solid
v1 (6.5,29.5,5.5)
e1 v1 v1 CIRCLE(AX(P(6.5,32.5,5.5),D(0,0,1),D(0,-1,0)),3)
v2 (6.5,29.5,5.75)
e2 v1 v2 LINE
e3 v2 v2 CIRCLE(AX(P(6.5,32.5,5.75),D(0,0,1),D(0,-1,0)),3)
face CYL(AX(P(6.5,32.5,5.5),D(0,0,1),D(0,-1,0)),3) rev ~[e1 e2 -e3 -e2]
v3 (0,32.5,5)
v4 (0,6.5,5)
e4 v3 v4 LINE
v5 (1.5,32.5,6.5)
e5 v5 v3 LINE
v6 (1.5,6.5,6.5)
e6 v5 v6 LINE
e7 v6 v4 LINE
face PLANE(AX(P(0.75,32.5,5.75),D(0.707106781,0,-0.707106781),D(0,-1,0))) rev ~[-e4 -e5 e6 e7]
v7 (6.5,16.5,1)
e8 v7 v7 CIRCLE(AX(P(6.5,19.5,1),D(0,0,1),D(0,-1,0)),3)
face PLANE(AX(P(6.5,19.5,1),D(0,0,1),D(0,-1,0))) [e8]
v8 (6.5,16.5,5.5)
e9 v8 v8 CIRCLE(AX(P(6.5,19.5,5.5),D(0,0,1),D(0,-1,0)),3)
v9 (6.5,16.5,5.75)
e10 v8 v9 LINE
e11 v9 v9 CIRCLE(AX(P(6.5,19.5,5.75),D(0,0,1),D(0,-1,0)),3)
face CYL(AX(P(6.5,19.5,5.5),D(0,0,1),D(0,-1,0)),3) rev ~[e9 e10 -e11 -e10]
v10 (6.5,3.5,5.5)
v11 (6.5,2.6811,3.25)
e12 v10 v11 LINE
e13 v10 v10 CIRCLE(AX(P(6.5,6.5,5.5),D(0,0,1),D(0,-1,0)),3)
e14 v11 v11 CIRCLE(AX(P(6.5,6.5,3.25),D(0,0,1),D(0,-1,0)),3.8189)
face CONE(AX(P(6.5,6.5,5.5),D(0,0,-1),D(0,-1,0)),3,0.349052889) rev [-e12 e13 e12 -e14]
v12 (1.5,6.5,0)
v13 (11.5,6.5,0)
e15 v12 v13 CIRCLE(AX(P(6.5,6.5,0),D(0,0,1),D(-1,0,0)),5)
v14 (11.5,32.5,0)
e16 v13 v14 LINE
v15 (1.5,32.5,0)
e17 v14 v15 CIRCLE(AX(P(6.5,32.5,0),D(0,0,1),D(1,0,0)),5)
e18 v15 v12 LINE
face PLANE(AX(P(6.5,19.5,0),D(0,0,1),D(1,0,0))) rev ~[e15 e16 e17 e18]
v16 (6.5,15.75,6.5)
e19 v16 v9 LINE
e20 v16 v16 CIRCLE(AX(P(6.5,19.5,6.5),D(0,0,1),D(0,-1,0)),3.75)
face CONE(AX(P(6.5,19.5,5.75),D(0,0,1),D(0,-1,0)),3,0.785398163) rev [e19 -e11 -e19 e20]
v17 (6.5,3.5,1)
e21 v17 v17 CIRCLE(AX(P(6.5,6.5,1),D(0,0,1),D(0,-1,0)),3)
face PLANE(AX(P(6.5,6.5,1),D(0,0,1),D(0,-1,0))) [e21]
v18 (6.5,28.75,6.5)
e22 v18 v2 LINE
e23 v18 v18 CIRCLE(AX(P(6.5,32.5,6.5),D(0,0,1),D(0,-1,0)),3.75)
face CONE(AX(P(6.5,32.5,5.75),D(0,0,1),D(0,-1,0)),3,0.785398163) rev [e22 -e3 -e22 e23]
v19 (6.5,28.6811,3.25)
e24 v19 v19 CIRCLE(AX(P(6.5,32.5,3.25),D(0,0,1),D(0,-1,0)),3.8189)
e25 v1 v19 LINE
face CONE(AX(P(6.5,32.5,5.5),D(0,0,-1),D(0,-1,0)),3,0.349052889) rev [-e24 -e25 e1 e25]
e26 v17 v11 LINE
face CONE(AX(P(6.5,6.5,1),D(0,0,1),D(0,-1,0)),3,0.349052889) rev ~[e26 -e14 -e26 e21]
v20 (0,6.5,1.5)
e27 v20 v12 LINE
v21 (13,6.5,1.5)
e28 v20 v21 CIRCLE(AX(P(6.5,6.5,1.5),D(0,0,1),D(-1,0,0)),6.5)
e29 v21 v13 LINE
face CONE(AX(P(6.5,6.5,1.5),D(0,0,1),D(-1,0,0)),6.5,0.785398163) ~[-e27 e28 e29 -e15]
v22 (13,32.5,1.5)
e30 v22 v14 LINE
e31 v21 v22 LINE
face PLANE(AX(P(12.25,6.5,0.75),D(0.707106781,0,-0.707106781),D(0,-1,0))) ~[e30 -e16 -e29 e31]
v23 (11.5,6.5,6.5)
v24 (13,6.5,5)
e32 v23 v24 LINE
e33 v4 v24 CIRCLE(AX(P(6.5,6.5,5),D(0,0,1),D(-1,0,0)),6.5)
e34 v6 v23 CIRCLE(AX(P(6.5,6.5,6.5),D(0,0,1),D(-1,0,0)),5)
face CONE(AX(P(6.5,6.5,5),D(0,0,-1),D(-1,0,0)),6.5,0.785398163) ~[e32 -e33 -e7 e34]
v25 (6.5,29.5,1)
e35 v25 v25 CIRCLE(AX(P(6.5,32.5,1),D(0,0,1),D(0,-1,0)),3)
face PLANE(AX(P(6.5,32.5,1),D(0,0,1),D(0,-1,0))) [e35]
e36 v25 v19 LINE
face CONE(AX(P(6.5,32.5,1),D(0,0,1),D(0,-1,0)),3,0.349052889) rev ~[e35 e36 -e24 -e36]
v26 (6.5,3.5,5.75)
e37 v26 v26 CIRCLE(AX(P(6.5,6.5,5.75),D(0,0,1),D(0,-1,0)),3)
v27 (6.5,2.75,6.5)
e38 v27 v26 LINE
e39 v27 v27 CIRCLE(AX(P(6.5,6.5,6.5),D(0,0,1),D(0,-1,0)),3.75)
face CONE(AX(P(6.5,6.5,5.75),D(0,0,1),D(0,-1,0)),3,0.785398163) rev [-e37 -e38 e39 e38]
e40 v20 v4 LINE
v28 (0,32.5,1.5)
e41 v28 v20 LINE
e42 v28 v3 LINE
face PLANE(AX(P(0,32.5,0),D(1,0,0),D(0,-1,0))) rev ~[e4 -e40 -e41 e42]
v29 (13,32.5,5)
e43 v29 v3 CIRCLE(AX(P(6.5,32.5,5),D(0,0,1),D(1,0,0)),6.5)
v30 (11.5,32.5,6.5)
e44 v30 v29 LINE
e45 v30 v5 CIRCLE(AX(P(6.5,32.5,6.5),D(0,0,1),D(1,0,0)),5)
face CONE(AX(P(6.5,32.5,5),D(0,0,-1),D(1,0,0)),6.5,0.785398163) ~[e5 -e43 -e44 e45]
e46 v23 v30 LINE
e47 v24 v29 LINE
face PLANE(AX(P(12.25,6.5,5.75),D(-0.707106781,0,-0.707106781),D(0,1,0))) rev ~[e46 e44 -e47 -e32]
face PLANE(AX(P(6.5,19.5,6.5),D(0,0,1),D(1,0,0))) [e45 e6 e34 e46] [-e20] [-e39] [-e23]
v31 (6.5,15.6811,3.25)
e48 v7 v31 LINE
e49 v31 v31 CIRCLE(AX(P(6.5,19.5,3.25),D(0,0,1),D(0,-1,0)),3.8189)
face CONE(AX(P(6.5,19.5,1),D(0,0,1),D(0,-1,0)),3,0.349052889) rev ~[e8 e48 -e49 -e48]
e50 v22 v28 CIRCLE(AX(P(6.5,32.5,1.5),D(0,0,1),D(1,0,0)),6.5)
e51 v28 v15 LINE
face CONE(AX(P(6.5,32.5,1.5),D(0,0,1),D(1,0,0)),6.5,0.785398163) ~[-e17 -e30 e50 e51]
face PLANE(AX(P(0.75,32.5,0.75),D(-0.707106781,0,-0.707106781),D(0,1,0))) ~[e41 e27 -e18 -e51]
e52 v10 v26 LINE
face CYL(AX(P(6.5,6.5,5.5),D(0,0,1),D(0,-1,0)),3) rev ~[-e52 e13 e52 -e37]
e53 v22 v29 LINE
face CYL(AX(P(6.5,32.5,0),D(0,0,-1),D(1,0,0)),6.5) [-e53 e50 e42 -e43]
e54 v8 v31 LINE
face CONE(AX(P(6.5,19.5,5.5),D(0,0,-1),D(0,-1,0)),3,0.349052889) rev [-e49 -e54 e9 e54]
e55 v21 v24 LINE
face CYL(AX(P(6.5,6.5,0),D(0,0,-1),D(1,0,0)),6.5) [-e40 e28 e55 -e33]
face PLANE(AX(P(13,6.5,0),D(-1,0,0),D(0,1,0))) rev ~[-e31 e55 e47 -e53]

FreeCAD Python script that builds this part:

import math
import FreeCAD as App
import Part
import Sketcher

V = App.Vector
Q = App.Units.Quantity


def edges_at(feature, points):
    """Names of the edges that pass closest to the given points."""
    edges = feature.Shape.Edges
    near = lambda p: min(range(len(edges)), key=lambda i: edges[i].distToShape(Part.Vertex(*p))[0])
    return sorted({f"Edge{near(p) + 1}" for p in points})

doc = App.newDocument("Part")
body = doc.addObject("PartDesign::Body", "Body")

sketch1 = doc.addObject("Sketcher::SketchObject", "Sketch")
body.addObject(sketch1)
sketch1.AttachmentSupport = (doc.XY_Plane, [""])
sketch1.MapMode = "FlatFace"
sketch1.addGeometry(Part.ArcOfCircle(Part.Circle(V(6, 32, 0), V(0, 0, 1), 6), math.radians(0), math.radians(180)), False)
sketch1.addGeometry(Part.LineSegment(V(0, 32, 0), V(0, 6, 0)), False)
sketch1.addGeometry(Part.ArcOfCircle(Part.Circle(V(6, 6, 0), V(0, 0, 1), 6), math.radians(180), math.radians(360)), False)
sketch1.addGeometry(Part.LineSegment(V(13, 6, 0), V(13, 32, 0)), False)
sketch1.addConstraint(Sketcher.Constraint("Tangent", 0, 2, 1, 1))
sketch1.addConstraint(Sketcher.Constraint("Tangent", 1, 2, 2, 1))
sketch1.addConstraint(Sketcher.Constraint("Tangent", 2, 2, 3, 1))
sketch1.addConstraint(Sketcher.Constraint("Tangent", 3, 2, 0, 1))
sketch1.addConstraint(Sketcher.Constraint("Vertical", 1))
sketch1.addConstraint(Sketcher.Constraint("Vertical", 3))
sketch1.addConstraint(Sketcher.Constraint("PointOnObject", 0, 2, -2))
sketch1.addConstraint(Sketcher.Constraint("Radius", 0, 6.5))
sketch1.addConstraint(Sketcher.Constraint("DistanceY", 1, 2, 1, 1, 26.0))
sketch1.addConstraint(Sketcher.Constraint("DistanceY", -1, 1, 0, 3, 32.5))
pad1 = doc.addObject("PartDesign::Pad", "Pad")
body.addObject(pad1)
pad1.Profile = sketch1
pad1.Length = 6.5

sketch2 = doc.addObject("Sketcher::SketchObject", "Sketch001")
body.addObject(sketch2)
sketch2.AttachmentSupport = (doc.YZ_Plane, [""])
sketch2.MapMode = "FlatFace"
sketch2.AttachmentOffset = App.Placement(V(0, 0, 6.5), App.Rotation())
sketch2.addGeometry(Part.LineSegment(V(3.5, 6.5, 0), V(3.5, 5.5, 0)), False)
sketch2.addGeometry(Part.LineSegment(V(3.5, 5.5, 0), V(2.7, 3.2, 0)), False)
sketch2.addGeometry(Part.LineSegment(V(2.7, 3.2, 0), V(3.5, 1, 0)), False)
sketch2.addGeometry(Part.LineSegment(V(3.5, 1, 0), V(6.5, 1, 0)), False)
sketch2.addGeometry(Part.LineSegment(V(6.5, 1, 0), V(6.5, 6.5, 0)), False)
sketch2.addGeometry(Part.LineSegment(V(6.5, 6.5, 0), V(3.5, 6.5, 0)), False)
sketch2.addGeometry(Part.LineSegment(V(6.5, 1, 0), V(6.5, 6.5, 0)), True)
sketch2.addConstraint(Sketcher.Constraint("Coincident", 0, 2, 1, 1))
sketch2.addConstraint(Sketcher.Constraint("Coincident", 1, 2, 2, 1))
sketch2.addConstraint(Sketcher.Constraint("Coincident", 2, 2, 3, 1))
sketch2.addConstraint(Sketcher.Constraint("Coincident", 3, 2, 4, 1))
sketch2.addConstraint(Sketcher.Constraint("Coincident", 4, 2, 5, 1))
sketch2.addConstraint(Sketcher.Constraint("Coincident", 5, 2, 0, 1))
sketch2.addConstraint(Sketcher.Constraint("Vertical", 0))
sketch2.addConstraint(Sketcher.Constraint("Horizontal", 3))
sketch2.addConstraint(Sketcher.Constraint("Vertical", 4))
sketch2.addConstraint(Sketcher.Constraint("Horizontal", 5))
sketch2.addConstraint(Sketcher.Constraint("Vertical", 6))
sketch2.addConstraint(Sketcher.Constraint("Coincident", 6, 1, 3, 2))
sketch2.addConstraint(Sketcher.Constraint("Horizontal", 5, 2, 6, 2))
sketch2.addConstraint(Sketcher.Constraint("Vertical", 0, 2, 2, 2))
sketch2.addConstraint(Sketcher.Constraint("Equal", 1, 2))
sketch2.addConstraint(Sketcher.Constraint("DistanceX", 3, 1, 3, 2, 3.0))
sketch2.addConstraint(Sketcher.Constraint("DistanceY", 0, 2, 0, 1, 1.0))
sketch2.addConstraint(Sketcher.Constraint("Angle", 1, Q("-109.9993 deg")))
sketch2.addConstraint(Sketcher.Constraint("DistanceY", 4, 1, 4, 2, 5.5))
sketch2.addConstraint(Sketcher.Constraint("DistanceY", -1, 1, 2, 2, 1.0))
sketch2.addConstraint(Sketcher.Constraint("DistanceX", -1, 1, 0, 2, 3.5))
groove = doc.addObject("PartDesign::Groove", "Groove")
body.addObject(groove)
groove.Profile = sketch2
groove.ReferenceAxis = (sketch2, ["Axis0"])
groove.Angle = 360
doc.recompute()

chamfer = doc.addObject("PartDesign::Chamfer", "Chamfer")
body.addObject(chamfer)
chamfer.Base = (groove, edges_at(groove, [(6.5, 3.5, 6.5)]))
chamfer.Size = 0.75
doc.recompute()

linearpattern = doc.addObject("PartDesign::LinearPattern", "LinearPattern")
body.addObject(linearpattern)
linearpattern.Originals = [groove, chamfer]
linearpattern.Direction = (doc.Y_Axis, [""])
linearpattern.Mode = "offset"
linearpattern.Offset = 13
linearpattern.Occurrences = 3
body.Tip = linearpattern
doc.recompute()

chamfer2 = doc.addObject("PartDesign::Chamfer", "Chamfer001")
body.addObject(chamfer2)
chamfer2.Base = (linearpattern, edges_at(linearpattern, [
    (13, 19.5, 6.5),
    (6.5, 0, 6.5),
    (0, 19.5, 6.5),
    (6.5, 39, 6.5),
    (13, 19.5, 0),
    (6.5, 0, 0),
    (0, 19.5, 0),
    (6.5, 39, 0),
]))
chamfer2.Size = 1.5

doc.recompute()
